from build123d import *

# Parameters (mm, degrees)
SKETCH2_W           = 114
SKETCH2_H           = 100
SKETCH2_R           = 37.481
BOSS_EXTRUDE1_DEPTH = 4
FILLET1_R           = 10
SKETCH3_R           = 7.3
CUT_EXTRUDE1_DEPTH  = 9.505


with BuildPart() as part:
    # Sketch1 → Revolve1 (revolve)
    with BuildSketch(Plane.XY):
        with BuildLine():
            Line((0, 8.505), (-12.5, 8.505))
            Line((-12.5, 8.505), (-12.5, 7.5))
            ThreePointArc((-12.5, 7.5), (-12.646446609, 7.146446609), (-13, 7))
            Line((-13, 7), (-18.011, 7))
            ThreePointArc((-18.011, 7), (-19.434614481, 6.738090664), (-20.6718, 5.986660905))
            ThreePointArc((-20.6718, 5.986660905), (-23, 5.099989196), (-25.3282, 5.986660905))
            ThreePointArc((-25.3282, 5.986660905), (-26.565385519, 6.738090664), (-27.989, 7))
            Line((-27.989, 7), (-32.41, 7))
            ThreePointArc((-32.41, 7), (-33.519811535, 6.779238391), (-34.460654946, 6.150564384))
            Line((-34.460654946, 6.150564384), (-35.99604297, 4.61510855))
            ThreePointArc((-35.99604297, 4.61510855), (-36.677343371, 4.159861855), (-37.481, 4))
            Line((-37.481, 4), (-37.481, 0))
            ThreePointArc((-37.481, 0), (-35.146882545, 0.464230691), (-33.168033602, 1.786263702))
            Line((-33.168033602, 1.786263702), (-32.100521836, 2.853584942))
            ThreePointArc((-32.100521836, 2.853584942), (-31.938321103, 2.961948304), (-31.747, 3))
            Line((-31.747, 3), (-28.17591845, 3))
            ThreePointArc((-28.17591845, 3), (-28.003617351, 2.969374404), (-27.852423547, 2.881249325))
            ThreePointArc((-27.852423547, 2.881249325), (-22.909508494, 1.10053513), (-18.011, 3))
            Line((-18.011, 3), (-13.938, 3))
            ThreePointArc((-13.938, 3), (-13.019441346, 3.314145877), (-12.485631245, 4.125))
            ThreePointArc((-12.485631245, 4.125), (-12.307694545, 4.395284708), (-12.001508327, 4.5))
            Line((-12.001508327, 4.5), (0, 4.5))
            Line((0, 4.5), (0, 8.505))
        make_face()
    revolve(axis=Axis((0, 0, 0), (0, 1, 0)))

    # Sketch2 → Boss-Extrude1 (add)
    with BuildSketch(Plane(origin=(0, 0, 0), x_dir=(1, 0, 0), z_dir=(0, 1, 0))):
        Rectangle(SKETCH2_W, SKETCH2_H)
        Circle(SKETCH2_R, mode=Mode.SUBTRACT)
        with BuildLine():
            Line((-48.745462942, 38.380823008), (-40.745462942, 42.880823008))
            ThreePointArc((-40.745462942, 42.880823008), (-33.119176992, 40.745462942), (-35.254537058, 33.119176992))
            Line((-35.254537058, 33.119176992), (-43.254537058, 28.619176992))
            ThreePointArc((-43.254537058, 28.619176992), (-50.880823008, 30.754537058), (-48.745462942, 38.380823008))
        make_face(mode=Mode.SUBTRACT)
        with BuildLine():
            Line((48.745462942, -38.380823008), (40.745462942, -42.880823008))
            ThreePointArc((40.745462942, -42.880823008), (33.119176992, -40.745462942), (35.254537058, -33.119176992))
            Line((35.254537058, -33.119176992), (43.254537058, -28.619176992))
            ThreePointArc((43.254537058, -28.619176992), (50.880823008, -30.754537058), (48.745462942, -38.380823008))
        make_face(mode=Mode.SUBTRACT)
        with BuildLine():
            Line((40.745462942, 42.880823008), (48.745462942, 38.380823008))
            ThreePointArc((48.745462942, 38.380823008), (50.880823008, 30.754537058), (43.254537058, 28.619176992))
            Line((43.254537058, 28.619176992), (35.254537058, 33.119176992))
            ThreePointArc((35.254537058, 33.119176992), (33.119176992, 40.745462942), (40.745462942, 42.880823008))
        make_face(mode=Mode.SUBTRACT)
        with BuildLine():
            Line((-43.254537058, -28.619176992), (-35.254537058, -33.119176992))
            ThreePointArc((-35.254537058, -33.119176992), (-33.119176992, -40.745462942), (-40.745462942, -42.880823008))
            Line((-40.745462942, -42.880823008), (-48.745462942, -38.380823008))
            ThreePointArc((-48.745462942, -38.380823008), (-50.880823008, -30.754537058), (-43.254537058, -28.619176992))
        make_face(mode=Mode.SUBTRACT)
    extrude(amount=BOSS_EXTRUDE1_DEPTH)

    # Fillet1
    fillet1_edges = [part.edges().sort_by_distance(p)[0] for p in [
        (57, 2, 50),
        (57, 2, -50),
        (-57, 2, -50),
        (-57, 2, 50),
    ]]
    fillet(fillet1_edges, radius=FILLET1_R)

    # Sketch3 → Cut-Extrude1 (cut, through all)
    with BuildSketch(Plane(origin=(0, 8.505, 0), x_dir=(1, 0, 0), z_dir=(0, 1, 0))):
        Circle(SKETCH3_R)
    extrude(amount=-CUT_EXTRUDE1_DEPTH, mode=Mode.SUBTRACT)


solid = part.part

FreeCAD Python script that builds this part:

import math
import FreeCAD as App
import Part
import Sketcher

V = App.Vector


def edges_at(feature, points):
    """Names of the edges that pass closest to the given points."""
    edges = feature.Shape.Edges
    near = lambda p: min(range(len(edges)), key=lambda i: edges[i].distToShape(Part.Vertex(*p))[0])
    return sorted({f"Edge{near(p) + 1}" for p in points})

doc = App.newDocument("Part")
body = doc.addObject("PartDesign::Body", "Body")

# Sketch on XY plane
sketch1 = body.newObject("Sketcher::SketchObject", "Sketch")
sketch1.AttachmentSupport = (doc.getObject("XY_Plane"), [""])
sketch1.MapMode = "FlatFace"
sketch1.addGeometry([
    Part.LineSegment(V(0, 8.51, 0), V(-12.5, 8.51, 0)),  # 0
    Part.LineSegment(V(-12.5, 8.51, 0), V(-12.5, 7.5, 0)),  # 1
    Part.ArcOfCircle(Part.Circle(V(-13, 7.5, 0), V(0, 0, 1), 0.5), math.radians(-90), math.radians(0)),  # 2
    Part.LineSegment(V(-13, 7, 0), V(-18.01, 7, 0)),  # 3
    Part.ArcOfCircle(Part.Circle(V(-18.01, 3, 0), V(0, 0, 1), 4), math.radians(90), math.radians(132)),  # 4
    Part.ArcOfCircle(Part.Circle(V(-23, 8.6, 0), V(0, 0, 1), 3.5), math.radians(-132), math.radians(-48)),  # 5
    Part.ArcOfCircle(Part.Circle(V(-27.99, 3, 0), V(0, 0, 1), 4), math.radians(48), math.radians(90)),  # 6
    Part.LineSegment(V(-27.99, 7, 0), V(-32.41, 7, 0)),  # 7
    Part.ArcOfCircle(Part.Circle(V(-32.41, 4.1, 0), V(0, 0, 1), 2.9), math.radians(90), math.radians(135)),  # 8
    Part.LineSegment(V(-34.46, 6.15, 0), V(-36, 4.62, 0)),  # 9
    Part.ArcOfCircle(Part.Circle(V(-37.48, 6.1, 0), V(0, 0, 1), 2.1), math.radians(-90), math.radians(-45)),  # 10
    Part.LineSegment(V(-37.48, 4, 0), V(-37.48, 0, 0)),  # 11
    Part.ArcOfCircle(Part.Circle(V(-37.48, 6.1, 0), V(0, 0, 1), 6.1), math.radians(-90), math.radians(-45)),  # 12
    Part.LineSegment(V(-33.17, 1.79, 0), V(-32.1, 2.85, 0)),  # 13
    Part.ArcOfCircle(Part.Circle(V(-31.75, 2.5, 0), V(0, 0, 1), 0.5), math.radians(90), math.radians(135)),  # 14
    Part.LineSegment(V(-31.75, 3, 0), V(-28.18, 3, 0)),  # 15
    Part.ArcOfCircle(Part.Circle(V(-28.18, 2.5, 0), V(0, 0, 1), 0.5), math.radians(50), math.radians(90)),  # 16
    Part.ArcOfCircle(Part.Circle(V(-23, 8.6, 0), V(0, 0, 1), 7.5), math.radians(-130), math.radians(-48)),  # 17
    Part.LineSegment(V(-18.01, 3, 0), V(-13.94, 3, 0)),  # 18
    Part.ArcOfCircle(Part.Circle(V(-13.94, 4.5, 0), V(0, 0, 1), 1.5), math.radians(-90), math.radians(-14)),  # 19
    Part.ArcOfCircle(Part.Circle(V(-12, 4, 0), V(0, 0, 1), 0.5), math.radians(90), math.radians(166)),  # 20
    Part.LineSegment(V(-12, 4.5, 0), V(0, 4.5, 0)),  # 21
    Part.LineSegment(V(0, 4.5, 0), V(0, 8.51, 0)),  # 22
], False)
sketch1.addConstraint([
    Sketcher.Constraint("Coincident", 0, 2, 1, 1),
    Sketcher.Constraint("Tangent", 1, 2, 2, 2),
    Sketcher.Constraint("Tangent", 2, 1, 3, 1),
    Sketcher.Constraint("Tangent", 3, 2, 4, 1),
    Sketcher.Constraint("Tangent", 4, 2, 5, 2),
    Sketcher.Constraint("Tangent", 5, 1, 6, 1),
    Sketcher.Constraint("Tangent", 6, 2, 7, 1),
    Sketcher.Constraint("Tangent", 7, 2, 8, 1),
    Sketcher.Constraint("Tangent", 8, 2, 9, 1),
    Sketcher.Constraint("Tangent", 9, 2, 10, 2),
    Sketcher.Constraint("Coincident", 10, 1, 11, 1),
    Sketcher.Constraint("Coincident", 11, 2, 12, 1),
    Sketcher.Constraint("Tangent", 12, 2, 13, 1),
    Sketcher.Constraint("Tangent", 13, 2, 14, 2),
    Sketcher.Constraint("Tangent", 14, 1, 15, 1),
    Sketcher.Constraint("Tangent", 15, 2, 16, 2),
    Sketcher.Constraint("Tangent", 16, 1, 17, 1),
    Sketcher.Constraint("Coincident", 17, 2, 18, 1),
    Sketcher.Constraint("Tangent", 18, 2, 19, 1),
    Sketcher.Constraint("Tangent", 19, 2, 20, 2),
    Sketcher.Constraint("Tangent", 20, 1, 21, 1),
    Sketcher.Constraint("Coincident", 21, 2, 22, 1),
    Sketcher.Constraint("Coincident", 22, 2, 0, 1),
    Sketcher.Constraint("Horizontal", 0),
    Sketcher.Constraint("Vertical", 1),
    Sketcher.Constraint("Horizontal", 3),
    Sketcher.Constraint("Horizontal", 7),
    Sketcher.Constraint("Vertical", 11),
    Sketcher.Constraint("Horizontal", 15),
    Sketcher.Constraint("Horizontal", 18),
    Sketcher.Constraint("Horizontal", 21),
    Sketcher.Constraint("Vertical", 22),
    Sketcher.Constraint("Coincident", 12, 3, 10, 3),
    Sketcher.Constraint("Coincident", 17, 3, 5, 3),
    Sketcher.Constraint("Coincident", 17, 2, 4, 3),
    Sketcher.Constraint("Equal", 4, 6),
    Sketcher.Constraint("Equal", 2, 14),
    Sketcher.Constraint("Equal", 14, 16),
    Sketcher.Constraint("Equal", 16, 20),
    Sketcher.Constraint("PointOnObject", 11, 2, -1),
    Sketcher.Constraint("PointOnObject", 21, 2, -2),
    Sketcher.Constraint("Horizontal", 4, 3, 6, 3),
    Sketcher.Constraint("Horizontal", 20, 3, 10, 1),
    Sketcher.Constraint("Horizontal", 6, 3, 14, 1),
    Sketcher.Constraint("Horizontal", 19, 3, 20, 1),
    Sketcher.Constraint("Vertical", 12, 3, 10, 1),
    Sketcher.Constraint("Radius", 4, 4.0),
    Sketcher.Constraint("Radius", 2, 0.5),
    Sketcher.Constraint("Radius", 5, 3.5),
    Sketcher.Constraint("Radius", 8, 2.9),
    Sketcher.Constraint("Radius", 10, 2.1),
    Sketcher.Constraint("Radius", 12, 6.1),
    Sketcher.Constraint("Radius", 19, 1.5),
    Sketcher.Constraint("DistanceX", 0, 2, 0, 1, 12.5),
    Sketcher.Constraint("DistanceX", 5, 3, -1, 1, 23.0),
    Sketcher.Constraint("DistanceX", 3, 2, 3, 1, 5.011),
    Sketcher.Constraint("DistanceX", 7, 2, 7, 1, 4.421),
    Sketcher.Constraint("DistanceX", 18, 1, 18, 2, 4.073),
    Sketcher.Constraint("DistanceY", 1, 2, 1, 1, 1.005),
    Sketcher.Constraint("DistanceX", 10, 3, 4, 3, 19.47),
    Sketcher.Constraint("DistanceX", 14, 3, -1, 1, 31.747),
])
revolution = body.newObject("PartDesign::Revolution", "Revolution")
revolution.Profile = sketch1
revolution.ReferenceAxis = (sketch1, ["V_Axis"])
revolution.Angle = 360

# Sketch on XZ plane
sketch2 = body.newObject("Sketcher::SketchObject", "Sketch001")
sketch2.AttachmentSupport = (doc.getObject("XZ_Plane"), [""])
sketch2.MapMode = "FlatFace"
sketch2.addGeometry([
    Part.LineSegment(V(-57, -50, 0), V(-57, 50, 0)),  # 0
    Part.LineSegment(V(-57, 50, 0), V(57, 50, 0)),  # 1
    Part.LineSegment(V(57, 50, 0), V(57, -50, 0)),  # 2
    Part.LineSegment(V(57, -50, 0), V(-57, -50, 0)),  # 3
    Part.ArcOfCircle(Part.Circle(V(-46, 34, 0), V(0, 0, 1), 6), math.radians(119), math.radians(299)),  # 4
    Part.LineSegment(V(-43, 29, 0), V(-35, 33, 0)),  # 5
    Part.ArcOfCircle(Part.Circle(V(-38, 38, 0), V(0, 0, 1), 6), math.radians(-61), math.radians(119)),  # 6
    Part.LineSegment(V(-41, 43, 0), V(-49, 38, 0)),  # 7
    Part.ArcOfCircle(Part.Circle(V(46, 34, 0), V(0, 0, 1), 6), math.radians(-119), math.radians(61)),  # 8
    Part.LineSegment(V(49, 38, 0), V(41, 43, 0)),  # 9
    Part.ArcOfCircle(Part.Circle(V(38, 38, 0), V(0, 0, 1), 6), math.radians(61), math.radians(241)),  # 10
    Part.LineSegment(V(35, 33, 0), V(43, 29, 0)),  # 11
    Part.ArcOfCircle(Part.Circle(V(-46, -34, 0), V(0, 0, 1), 6), math.radians(61), math.radians(241)),  # 12
    Part.LineSegment(V(-49, -38, 0), V(-41, -43, 0)),  # 13
    Part.ArcOfCircle(Part.Circle(V(-38, -38, 0), V(0, 0, 1), 6), math.radians(-119), math.radians(61)),  # 14
    Part.LineSegment(V(-35, -33, 0), V(-43, -29, 0)),  # 15
    Part.Circle(V(0, 0, 0), V(0, 0, 1), 37),  # 16
    Part.ArcOfCircle(Part.Circle(V(38, -38, 0), V(0, 0, 1), 6), math.radians(119), math.radians(299)),  # 17
    Part.LineSegment(V(41, -43, 0), V(49, -38, 0)),  # 18
    Part.ArcOfCircle(Part.Circle(V(46, -34, 0), V(0, 0, 1), 6), math.radians(-61), math.radians(119)),  # 19
    Part.LineSegment(V(43, -29, 0), V(35, -33, 0)),  # 20
], False)
sketch2.addConstraint([
    Sketcher.Constraint("Coincident", 0, 2, 1, 1),
    Sketcher.Constraint("Coincident", 1, 2, 2, 1),
    Sketcher.Constraint("Coincident", 2, 2, 3, 1),
    Sketcher.Constraint("Coincident", 3, 2, 0, 1),
    Sketcher.Constraint("Tangent", 4, 2, 5, 1),
    Sketcher.Constraint("Tangent", 5, 2, 6, 1),
    Sketcher.Constraint("Tangent", 6, 2, 7, 1),
    Sketcher.Constraint("Tangent", 7, 2, 4, 1),
    Sketcher.Constraint("Tangent", 8, 2, 9, 1),
    Sketcher.Constraint("Tangent", 9, 2, 10, 1),
    Sketcher.Constraint("Tangent", 10, 2, 11, 1),
    Sketcher.Constraint("Tangent", 11, 2, 8, 1),
    Sketcher.Constraint("Tangent", 12, 2, 13, 1),
    Sketcher.Constraint("Tangent", 13, 2, 14, 1),
    Sketcher.Constraint("Tangent", 14, 2, 15, 1),
    Sketcher.Constraint("Tangent", 15, 2, 12, 1),
    Sketcher.Constraint("Tangent", 17, 2, 18, 1),
    Sketcher.Constraint("Tangent", 18, 2, 19, 1),
    Sketcher.Constraint("Tangent", 19, 2, 20, 1),
    Sketcher.Constraint("Tangent", 20, 2, 17, 1),
    Sketcher.Constraint("Vertical", 0),
    Sketcher.Constraint("Horizontal", 1),
    Sketcher.Constraint("Vertical", 2),
    Sketcher.Constraint("Horizontal", 3),
    Sketcher.Constraint("Coincident", 16, 3, -1, 1),
    Sketcher.Constraint("Equal", 4, 6),
    Sketcher.Constraint("Equal", 6, 8),
    Sketcher.Constraint("Equal", 8, 10),
    Sketcher.Constraint("Equal", 10, 12),
    Sketcher.Constraint("Equal", 12, 14),
    Sketcher.Constraint("Equal", 14, 17),
    Sketcher.Constraint("Equal", 17, 19),
    Sketcher.Constraint("Symmetric", 8, 3, 12, 3, -1, 1),
    Sketcher.Constraint("Symmetric", 10, 3, 14, 3, -1, 1),
    Sketcher.Constraint("Symmetric", 6, 3, 17, 3, -1, 1),
    Sketcher.Constraint("Symmetric", 4, 3, 19, 3, -1, 1),
    Sketcher.Constraint("Symmetric", 0, 2, 2, 2, -1, 1),
    Sketcher.Constraint("Symmetric", 4, 3, 8, 3, -2),
    Sketcher.Constraint("Symmetric", 6, 3, 10, 3, -2),
    Sketcher.Constraint("Radius", 4, 5.6),
    Sketcher.Constraint("DistanceX", 1, 1, 1, 2, 114.0),
    Sketcher.Constraint("DistanceY", 0, 1, 0, 2, 100.0),
    Sketcher.Constraint("Diameter", 16, 74.962),
    Sketcher.Constraint("DistanceX", 4, 3, -1, 1, 46.0),
    Sketcher.Constraint("DistanceX", 6, 3, -1, 1, 38.0),
    Sketcher.Constraint("DistanceY", -1, 1, 6, 3, 38.0),
    Sketcher.Constraint("DistanceY", 12, 3, 4, 3, 67.0),
])
pad1 = body.newObject("PartDesign::Pad", "Pad")
pad1.Profile = sketch2
pad1.Length = 4
pad1.Reversed = True
doc.recompute()

fillet = body.newObject("PartDesign::Fillet", "Fillet")
fillet.Base = (pad1, edges_at(pad1, [
    (57, 2, 50),
    (57, 2, -50),
    (-57, 2, -50),
    (-57, 2, 50),
]))
fillet.Radius = 10

# Sketch on XZ plane
sketch3 = body.newObject("Sketcher::SketchObject", "Sketch002")
sketch3.AttachmentSupport = (doc.getObject("XZ_Plane"), [""])
sketch3.MapMode = "FlatFace"
sketch3.AttachmentOffset = App.Placement(V(0, 0, -8.505), App.Rotation())
sketch3.addGeometry(Part.Circle(V(0, 0, 0), V(0, 0, 1), 7), False)
sketch3.addConstraint([
    Sketcher.Constraint("Coincident", 0, 3, -1, 1),
    Sketcher.Constraint("Diameter", 0, 14.6),
])
pocket1 = body.newObject("PartDesign::Pocket", "Pocket")
pocket1.Profile = sketch3
pocket1.Type = "ThroughAll"
pocket1.Reversed = True

doc.recompute()
